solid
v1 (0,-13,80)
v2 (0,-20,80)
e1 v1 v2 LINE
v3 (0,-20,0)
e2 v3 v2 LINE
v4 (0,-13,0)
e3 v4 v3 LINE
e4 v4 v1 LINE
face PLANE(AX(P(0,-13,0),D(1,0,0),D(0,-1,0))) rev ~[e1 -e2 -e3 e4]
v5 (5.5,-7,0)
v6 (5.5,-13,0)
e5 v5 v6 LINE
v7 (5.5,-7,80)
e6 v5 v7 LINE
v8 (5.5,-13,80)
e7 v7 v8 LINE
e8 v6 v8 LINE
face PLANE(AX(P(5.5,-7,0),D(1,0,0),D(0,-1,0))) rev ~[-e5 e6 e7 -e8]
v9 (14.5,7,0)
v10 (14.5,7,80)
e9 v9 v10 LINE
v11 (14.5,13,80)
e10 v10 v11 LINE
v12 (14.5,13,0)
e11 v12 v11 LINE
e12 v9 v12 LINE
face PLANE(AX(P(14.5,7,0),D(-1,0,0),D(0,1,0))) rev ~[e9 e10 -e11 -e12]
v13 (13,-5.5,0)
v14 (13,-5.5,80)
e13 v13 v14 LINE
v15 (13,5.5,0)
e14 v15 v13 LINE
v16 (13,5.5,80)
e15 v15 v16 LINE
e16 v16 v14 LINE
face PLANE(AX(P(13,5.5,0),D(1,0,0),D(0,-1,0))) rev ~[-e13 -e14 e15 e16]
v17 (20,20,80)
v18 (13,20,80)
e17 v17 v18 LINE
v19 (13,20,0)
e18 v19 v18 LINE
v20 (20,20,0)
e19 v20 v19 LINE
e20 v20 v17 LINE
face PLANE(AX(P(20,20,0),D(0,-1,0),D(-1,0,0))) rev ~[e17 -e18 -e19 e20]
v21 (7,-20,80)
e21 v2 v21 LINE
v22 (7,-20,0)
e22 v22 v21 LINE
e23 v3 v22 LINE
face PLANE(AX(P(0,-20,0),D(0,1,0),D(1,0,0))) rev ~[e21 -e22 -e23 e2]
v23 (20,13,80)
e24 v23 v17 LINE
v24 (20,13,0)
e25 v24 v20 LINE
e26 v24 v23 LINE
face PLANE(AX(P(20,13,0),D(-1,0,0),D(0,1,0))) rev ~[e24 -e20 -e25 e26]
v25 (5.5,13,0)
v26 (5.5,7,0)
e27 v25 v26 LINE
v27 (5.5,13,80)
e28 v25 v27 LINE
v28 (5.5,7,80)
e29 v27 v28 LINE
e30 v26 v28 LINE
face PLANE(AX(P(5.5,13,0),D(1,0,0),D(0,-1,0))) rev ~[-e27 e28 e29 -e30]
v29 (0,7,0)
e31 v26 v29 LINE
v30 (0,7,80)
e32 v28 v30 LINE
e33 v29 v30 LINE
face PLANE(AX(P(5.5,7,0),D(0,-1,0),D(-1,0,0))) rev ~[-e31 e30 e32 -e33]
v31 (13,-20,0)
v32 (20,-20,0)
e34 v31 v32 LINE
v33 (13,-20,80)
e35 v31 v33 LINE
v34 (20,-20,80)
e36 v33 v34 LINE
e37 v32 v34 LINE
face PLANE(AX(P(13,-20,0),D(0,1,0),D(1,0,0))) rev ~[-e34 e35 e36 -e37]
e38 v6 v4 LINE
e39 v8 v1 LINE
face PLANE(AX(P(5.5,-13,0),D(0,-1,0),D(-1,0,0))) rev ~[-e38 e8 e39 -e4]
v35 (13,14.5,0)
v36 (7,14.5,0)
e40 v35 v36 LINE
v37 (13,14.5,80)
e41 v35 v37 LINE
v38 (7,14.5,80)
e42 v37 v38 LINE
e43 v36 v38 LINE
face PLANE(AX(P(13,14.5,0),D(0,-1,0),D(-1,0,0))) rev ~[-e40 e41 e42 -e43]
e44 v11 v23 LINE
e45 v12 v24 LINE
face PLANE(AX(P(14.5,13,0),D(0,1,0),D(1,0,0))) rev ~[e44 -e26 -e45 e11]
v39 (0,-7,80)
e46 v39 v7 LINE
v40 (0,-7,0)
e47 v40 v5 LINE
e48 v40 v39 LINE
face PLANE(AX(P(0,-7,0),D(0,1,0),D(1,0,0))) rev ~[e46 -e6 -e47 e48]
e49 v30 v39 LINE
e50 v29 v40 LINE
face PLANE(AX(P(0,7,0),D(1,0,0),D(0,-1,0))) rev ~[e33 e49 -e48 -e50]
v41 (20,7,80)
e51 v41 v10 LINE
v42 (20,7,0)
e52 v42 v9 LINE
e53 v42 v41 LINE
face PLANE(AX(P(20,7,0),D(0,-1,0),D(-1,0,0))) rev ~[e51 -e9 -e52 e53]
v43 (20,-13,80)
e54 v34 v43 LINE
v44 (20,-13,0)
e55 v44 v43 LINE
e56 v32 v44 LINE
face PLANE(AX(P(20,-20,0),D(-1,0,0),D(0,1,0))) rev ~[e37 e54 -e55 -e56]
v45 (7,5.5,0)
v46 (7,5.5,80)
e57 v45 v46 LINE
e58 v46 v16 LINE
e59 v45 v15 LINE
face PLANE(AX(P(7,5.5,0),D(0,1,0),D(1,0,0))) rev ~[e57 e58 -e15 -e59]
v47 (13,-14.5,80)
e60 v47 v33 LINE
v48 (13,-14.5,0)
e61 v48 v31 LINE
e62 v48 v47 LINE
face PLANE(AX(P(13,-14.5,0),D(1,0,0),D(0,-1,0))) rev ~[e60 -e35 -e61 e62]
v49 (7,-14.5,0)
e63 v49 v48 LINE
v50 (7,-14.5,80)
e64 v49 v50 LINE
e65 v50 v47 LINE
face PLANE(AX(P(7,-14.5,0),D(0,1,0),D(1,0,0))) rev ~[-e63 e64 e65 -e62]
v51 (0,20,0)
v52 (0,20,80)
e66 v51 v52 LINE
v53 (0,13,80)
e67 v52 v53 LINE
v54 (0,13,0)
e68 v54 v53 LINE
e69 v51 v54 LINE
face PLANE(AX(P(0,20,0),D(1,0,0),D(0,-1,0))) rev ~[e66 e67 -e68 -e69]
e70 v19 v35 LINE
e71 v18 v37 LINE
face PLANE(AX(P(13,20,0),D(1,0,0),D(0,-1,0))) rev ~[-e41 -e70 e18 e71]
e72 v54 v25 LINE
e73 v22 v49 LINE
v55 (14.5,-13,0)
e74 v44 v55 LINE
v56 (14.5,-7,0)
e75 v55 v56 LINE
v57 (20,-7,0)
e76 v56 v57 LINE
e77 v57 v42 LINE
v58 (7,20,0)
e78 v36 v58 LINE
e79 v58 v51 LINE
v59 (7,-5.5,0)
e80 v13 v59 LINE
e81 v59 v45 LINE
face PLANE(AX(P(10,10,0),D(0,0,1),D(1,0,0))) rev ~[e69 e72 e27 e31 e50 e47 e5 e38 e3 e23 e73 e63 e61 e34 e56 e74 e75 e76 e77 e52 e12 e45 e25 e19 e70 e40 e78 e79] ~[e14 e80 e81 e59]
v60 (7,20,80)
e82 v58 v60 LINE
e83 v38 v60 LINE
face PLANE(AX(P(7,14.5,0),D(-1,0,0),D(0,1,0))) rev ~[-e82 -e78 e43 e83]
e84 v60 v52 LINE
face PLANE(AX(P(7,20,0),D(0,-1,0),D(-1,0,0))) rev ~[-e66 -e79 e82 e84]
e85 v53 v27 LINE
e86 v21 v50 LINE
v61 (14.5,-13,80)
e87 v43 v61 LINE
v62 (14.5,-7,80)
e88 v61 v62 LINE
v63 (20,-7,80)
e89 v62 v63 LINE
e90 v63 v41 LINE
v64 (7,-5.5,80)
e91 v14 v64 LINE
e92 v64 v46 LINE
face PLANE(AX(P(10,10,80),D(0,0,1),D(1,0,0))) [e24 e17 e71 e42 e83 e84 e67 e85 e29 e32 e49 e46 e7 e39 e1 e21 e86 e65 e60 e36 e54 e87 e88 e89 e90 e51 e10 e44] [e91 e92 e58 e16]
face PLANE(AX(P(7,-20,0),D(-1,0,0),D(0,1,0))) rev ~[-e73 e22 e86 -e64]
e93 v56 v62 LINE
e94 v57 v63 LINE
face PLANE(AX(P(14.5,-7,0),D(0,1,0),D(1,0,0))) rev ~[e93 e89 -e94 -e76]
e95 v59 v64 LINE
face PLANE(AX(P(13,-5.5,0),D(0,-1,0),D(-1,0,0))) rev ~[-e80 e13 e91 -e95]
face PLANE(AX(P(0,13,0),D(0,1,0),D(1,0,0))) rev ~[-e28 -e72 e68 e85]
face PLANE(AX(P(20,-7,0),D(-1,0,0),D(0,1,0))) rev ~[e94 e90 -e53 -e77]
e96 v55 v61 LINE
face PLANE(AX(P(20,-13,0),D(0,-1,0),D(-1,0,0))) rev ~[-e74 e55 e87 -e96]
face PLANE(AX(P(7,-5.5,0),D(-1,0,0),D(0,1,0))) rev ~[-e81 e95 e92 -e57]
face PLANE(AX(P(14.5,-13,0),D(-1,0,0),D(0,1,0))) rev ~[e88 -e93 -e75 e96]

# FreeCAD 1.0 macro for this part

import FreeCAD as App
import Part
import Sketcher
from FreeCAD import Vector
Q = App.Units.Quantity


def add_polygon(sketch, points):
    """Adds a closed chain of lines whose ends are joined by coincident constraints."""
    first, n = sketch.GeometryCount, len(points)
    for a, b in zip(points, points[1:] + points[:1]):
        sketch.addGeometry(Part.LineSegment(App.Vector(*a, 0), App.Vector(*b, 0)), False)
    for i in range(n):
        sketch.addConstraint(Sketcher.Constraint("Coincident", first + i, 2, first + (i + 1) % n, 1))

doc = App.newDocument("Part")
body = doc.addObject("PartDesign::Body", "Body")

sketch1 = body.newObject("Sketcher::SketchObject", "Sketch")
sketch1.AttachmentSupport = (doc.getObject("XY_Plane"), [""])
sketch1.MapMode = "FlatFace"
add_polygon(sketch1, [(0, 7), (0, -7), (6, -7), (6, -13), (0, -13), (0, -20), (7, -20), (7, -14), (13, -14), (13, -20), (20, -20), (20, -13), (14, -13), (14, -7), (20, -7), (20, 7), (14, 7), (14, 13), (20, 13), (20, 20), (13, 20), (13, 14), (7, 14), (7, 20), (0, 20), (0, 13), (6, 13), (6, 7)])
add_polygon(sketch1, [(7, 6), (13, 6), (13, -6), (7, -6)])
sketch1.addConstraint([
    Sketcher.Constraint("Vertical", 0),
    Sketcher.Constraint("Horizontal", 1),
    Sketcher.Constraint("Vertical", 2),
    Sketcher.Constraint("Horizontal", 3),
    Sketcher.Constraint("Vertical", 4),
    Sketcher.Constraint("Horizontal", 5),
    Sketcher.Constraint("Vertical", 6),
    Sketcher.Constraint("Horizontal", 7),
    Sketcher.Constraint("Vertical", 8),
    Sketcher.Constraint("Horizontal", 9),
    Sketcher.Constraint("Vertical", 10),
    Sketcher.Constraint("Horizontal", 11),
    Sketcher.Constraint("Vertical", 12),
    Sketcher.Constraint("Horizontal", 13),
    Sketcher.Constraint("Vertical", 14),
    Sketcher.Constraint("Horizontal", 15),
    Sketcher.Constraint("Vertical", 16),
    Sketcher.Constraint("Horizontal", 17),
    Sketcher.Constraint("Vertical", 18),
    Sketcher.Constraint("Horizontal", 19),
    Sketcher.Constraint("Vertical", 20),
    Sketcher.Constraint("Horizontal", 21),
    Sketcher.Constraint("Vertical", 22),
    Sketcher.Constraint("Horizontal", 23),
    Sketcher.Constraint("Vertical", 24),
    Sketcher.Constraint("Horizontal", 25),
    Sketcher.Constraint("Vertical", 26),
    Sketcher.Constraint("Horizontal", 27),
    Sketcher.Constraint("Horizontal", 28),
    Sketcher.Constraint("Vertical", 29),
    Sketcher.Constraint("Horizontal", 30),
    Sketcher.Constraint("Vertical", 31),
    Sketcher.Constraint("Symmetric", 4, 2, 23, 2, -1, 1),
    Sketcher.Constraint("Symmetric", 0, 2, 27, 2, -1, 1),
    Sketcher.Constraint("Symmetric", 12, 2, 15, 2, -1),
    Sketcher.Constraint("Symmetric", 10, 2, 17, 2, -1),
    Sketcher.Constraint("Symmetric", 8, 2, 19, 2, -1),
    Sketcher.Constraint("Symmetric", 6, 2, 21, 2, -1),
    Sketcher.Constraint("Symmetric", 3, 2, 24, 2, -1),
    Sketcher.Constraint("Horizontal", 5, 2, 8, 2),
    Sketcher.Constraint("Horizontal", 3, 2, 10, 2),
    Sketcher.Constraint("Horizontal", 1, 2, 12, 2),
    Sketcher.Constraint("Vertical", 10, 2, 13, 2),
    Sketcher.Constraint("Vertical", 2, 2, 25, 2),
    Sketcher.Constraint("Vertical", 20, 2, 28, 2),
    Sketcher.Constraint("Vertical", 22, 2, 30, 2),
    Sketcher.Constraint("Equal", 5, 9),
    Sketcher.Constraint("Equal", 3, 11),
    Sketcher.Constraint("Equal", 30, 2),
    Sketcher.Constraint("Equal", 23, 4),
    Sketcher.Constraint("Equal", 27, 6),
    Sketcher.Constraint("DistanceX", 5, 1, 5, 2, Q("7 mm")),
    Sketcher.Constraint("DistanceX", 7, 1, 7, 2, Q("6 mm")),
    Sketcher.Constraint("DistanceY", 0, 2, 0, 1, Q("14 mm")),
    Sketcher.Constraint("DistanceY", 29, 2, 29, 1, Q("11 mm")),
    Sketcher.Constraint("DistanceX", 1, 1, 1, 2, Q("5.5 mm")),
    Sketcher.Constraint("DistanceY", 28, 2, 20, 2, Q("9 mm")),
])
pad1 = body.newObject("PartDesign::Pad", "Pad")
pad1.Profile = sketch1
pad1.Length = 80

doc.recompute()
